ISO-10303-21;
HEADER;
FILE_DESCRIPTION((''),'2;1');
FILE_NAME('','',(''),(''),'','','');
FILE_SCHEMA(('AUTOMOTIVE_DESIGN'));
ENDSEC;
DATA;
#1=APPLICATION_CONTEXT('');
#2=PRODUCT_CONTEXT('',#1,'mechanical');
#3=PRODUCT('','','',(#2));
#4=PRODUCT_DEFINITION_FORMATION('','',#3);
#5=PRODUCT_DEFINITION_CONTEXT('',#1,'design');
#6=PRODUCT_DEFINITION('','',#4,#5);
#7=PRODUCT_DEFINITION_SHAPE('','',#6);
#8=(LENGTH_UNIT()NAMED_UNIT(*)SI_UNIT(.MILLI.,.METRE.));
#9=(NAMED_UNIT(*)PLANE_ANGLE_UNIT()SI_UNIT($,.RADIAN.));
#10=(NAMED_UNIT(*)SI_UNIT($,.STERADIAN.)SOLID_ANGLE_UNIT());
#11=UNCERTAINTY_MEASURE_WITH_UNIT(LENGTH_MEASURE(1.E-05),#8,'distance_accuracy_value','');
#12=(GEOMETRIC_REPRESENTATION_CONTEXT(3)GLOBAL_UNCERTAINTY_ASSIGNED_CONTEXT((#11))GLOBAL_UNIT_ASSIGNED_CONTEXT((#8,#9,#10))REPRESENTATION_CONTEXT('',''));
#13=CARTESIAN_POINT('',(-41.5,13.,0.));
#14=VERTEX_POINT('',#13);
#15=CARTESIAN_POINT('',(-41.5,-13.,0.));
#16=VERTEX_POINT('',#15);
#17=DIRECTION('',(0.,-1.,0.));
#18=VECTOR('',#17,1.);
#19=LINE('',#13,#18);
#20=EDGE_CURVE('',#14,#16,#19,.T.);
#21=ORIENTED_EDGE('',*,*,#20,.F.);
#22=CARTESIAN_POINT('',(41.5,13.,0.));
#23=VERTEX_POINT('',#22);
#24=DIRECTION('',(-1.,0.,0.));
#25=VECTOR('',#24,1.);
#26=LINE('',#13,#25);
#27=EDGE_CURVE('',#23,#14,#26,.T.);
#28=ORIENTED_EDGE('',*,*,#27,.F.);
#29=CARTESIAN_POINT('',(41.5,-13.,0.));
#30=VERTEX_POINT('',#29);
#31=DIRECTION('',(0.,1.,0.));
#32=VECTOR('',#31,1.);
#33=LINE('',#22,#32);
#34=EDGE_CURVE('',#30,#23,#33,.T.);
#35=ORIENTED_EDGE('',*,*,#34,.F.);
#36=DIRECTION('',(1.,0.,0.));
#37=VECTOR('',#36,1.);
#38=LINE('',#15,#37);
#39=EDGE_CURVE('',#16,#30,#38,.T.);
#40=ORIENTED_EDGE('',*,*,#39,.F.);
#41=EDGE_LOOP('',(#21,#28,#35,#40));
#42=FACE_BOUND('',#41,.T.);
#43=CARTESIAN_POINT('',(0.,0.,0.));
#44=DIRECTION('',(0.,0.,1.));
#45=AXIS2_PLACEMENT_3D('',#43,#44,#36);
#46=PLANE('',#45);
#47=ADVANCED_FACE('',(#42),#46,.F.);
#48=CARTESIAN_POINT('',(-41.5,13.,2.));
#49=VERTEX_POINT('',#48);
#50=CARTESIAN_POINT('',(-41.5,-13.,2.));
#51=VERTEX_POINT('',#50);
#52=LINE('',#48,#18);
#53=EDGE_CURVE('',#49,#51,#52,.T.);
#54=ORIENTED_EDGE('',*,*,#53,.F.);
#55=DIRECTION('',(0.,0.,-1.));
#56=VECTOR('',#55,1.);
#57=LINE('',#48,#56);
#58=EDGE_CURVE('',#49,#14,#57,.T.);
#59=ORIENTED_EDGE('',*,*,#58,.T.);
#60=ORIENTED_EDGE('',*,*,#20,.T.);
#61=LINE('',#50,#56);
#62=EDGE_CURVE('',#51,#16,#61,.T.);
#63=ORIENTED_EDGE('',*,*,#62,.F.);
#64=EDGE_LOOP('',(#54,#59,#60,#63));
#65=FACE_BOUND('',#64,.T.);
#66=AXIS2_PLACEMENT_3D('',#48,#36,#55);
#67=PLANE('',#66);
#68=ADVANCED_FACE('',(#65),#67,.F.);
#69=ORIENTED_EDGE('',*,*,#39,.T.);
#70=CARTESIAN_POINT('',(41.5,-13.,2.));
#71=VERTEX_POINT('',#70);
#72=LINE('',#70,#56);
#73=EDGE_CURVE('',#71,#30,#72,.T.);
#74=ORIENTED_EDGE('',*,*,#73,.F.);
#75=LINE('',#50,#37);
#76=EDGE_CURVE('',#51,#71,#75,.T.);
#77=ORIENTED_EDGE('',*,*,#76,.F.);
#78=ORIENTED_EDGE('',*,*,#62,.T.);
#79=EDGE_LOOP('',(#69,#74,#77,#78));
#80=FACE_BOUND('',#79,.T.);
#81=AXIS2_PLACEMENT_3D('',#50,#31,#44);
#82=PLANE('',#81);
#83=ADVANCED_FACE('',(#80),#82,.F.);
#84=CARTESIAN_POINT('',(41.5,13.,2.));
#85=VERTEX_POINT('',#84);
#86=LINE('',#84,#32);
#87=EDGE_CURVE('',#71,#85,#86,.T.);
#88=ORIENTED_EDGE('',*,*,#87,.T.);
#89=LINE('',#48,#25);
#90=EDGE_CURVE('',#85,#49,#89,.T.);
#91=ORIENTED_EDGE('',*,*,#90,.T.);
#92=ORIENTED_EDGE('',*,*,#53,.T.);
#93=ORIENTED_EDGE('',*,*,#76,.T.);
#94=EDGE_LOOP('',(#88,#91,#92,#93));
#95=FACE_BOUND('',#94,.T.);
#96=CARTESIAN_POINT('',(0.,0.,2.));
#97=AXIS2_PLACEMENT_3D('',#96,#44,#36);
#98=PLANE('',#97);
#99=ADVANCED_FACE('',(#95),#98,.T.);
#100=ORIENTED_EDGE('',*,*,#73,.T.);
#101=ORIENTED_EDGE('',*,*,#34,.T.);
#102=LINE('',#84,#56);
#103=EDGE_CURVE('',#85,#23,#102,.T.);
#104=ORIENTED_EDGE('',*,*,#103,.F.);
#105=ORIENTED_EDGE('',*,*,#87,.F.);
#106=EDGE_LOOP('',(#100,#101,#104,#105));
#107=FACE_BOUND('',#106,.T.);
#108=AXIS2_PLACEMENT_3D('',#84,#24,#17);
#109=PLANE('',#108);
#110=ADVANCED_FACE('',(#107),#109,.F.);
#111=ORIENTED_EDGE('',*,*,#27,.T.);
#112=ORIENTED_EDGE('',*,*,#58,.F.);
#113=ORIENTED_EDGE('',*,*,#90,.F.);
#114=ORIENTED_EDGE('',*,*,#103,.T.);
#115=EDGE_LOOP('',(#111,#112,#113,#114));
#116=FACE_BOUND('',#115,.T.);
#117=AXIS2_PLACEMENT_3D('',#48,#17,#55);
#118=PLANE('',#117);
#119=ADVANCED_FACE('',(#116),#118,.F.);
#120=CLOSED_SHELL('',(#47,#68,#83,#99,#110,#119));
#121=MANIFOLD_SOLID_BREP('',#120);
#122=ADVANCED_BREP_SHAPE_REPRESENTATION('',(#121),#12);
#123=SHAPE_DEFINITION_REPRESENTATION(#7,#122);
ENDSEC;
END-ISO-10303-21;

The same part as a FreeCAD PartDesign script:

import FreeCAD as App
import Part
import Sketcher
from FreeCAD import Vector

doc = App.newDocument("Part")
body = doc.addObject("PartDesign::Body", "Body")

sketch1 = body.newObject("Sketcher::SketchObject", "Sketch")
sketch1.AttachmentSupport = (doc.getObject("XY_Plane"), [""])
sketch1.MapMode = "FlatFace"
sketch1.addGeometry([
    Part.LineSegment(Vector(-41.5, 13, 0), Vector(-41.5, -13, 0)),
    Part.LineSegment(Vector(-41.5, -13, 0), Vector(41.5, -13, 0)),
    Part.LineSegment(Vector(41.5, -13, 0), Vector(41.5, 13, 0)),
    Part.LineSegment(Vector(41.5, 13, 0), Vector(-41.5, 13, 0)),
], False)
sketch1.addConstraint([
    Sketcher.Constraint("Coincident", 0, 2, 1, 1),
    Sketcher.Constraint("Coincident", 1, 2, 2, 1),
    Sketcher.Constraint("Coincident", 2, 2, 3, 1),
    Sketcher.Constraint("Coincident", 3, 2, 0, 1),
    Sketcher.Constraint("Vertical", 0),
    Sketcher.Constraint("Horizontal", 1),
    Sketcher.Constraint("Vertical", 2),
    Sketcher.Constraint("Horizontal", 3),
    Sketcher.Constraint("Symmetric", 0, 2, 2, 2, -1, 1),
    Sketcher.Constraint("DistanceX", 1, 1, 1, 2, 83.0),
    Sketcher.Constraint("DistanceY", 0, 2, 0, 1, 26.0),
])
pad1 = body.newObject("PartDesign::Pad", "Pad")
pad1.Profile = sketch1
pad1.Length = 2

doc.recompute()
